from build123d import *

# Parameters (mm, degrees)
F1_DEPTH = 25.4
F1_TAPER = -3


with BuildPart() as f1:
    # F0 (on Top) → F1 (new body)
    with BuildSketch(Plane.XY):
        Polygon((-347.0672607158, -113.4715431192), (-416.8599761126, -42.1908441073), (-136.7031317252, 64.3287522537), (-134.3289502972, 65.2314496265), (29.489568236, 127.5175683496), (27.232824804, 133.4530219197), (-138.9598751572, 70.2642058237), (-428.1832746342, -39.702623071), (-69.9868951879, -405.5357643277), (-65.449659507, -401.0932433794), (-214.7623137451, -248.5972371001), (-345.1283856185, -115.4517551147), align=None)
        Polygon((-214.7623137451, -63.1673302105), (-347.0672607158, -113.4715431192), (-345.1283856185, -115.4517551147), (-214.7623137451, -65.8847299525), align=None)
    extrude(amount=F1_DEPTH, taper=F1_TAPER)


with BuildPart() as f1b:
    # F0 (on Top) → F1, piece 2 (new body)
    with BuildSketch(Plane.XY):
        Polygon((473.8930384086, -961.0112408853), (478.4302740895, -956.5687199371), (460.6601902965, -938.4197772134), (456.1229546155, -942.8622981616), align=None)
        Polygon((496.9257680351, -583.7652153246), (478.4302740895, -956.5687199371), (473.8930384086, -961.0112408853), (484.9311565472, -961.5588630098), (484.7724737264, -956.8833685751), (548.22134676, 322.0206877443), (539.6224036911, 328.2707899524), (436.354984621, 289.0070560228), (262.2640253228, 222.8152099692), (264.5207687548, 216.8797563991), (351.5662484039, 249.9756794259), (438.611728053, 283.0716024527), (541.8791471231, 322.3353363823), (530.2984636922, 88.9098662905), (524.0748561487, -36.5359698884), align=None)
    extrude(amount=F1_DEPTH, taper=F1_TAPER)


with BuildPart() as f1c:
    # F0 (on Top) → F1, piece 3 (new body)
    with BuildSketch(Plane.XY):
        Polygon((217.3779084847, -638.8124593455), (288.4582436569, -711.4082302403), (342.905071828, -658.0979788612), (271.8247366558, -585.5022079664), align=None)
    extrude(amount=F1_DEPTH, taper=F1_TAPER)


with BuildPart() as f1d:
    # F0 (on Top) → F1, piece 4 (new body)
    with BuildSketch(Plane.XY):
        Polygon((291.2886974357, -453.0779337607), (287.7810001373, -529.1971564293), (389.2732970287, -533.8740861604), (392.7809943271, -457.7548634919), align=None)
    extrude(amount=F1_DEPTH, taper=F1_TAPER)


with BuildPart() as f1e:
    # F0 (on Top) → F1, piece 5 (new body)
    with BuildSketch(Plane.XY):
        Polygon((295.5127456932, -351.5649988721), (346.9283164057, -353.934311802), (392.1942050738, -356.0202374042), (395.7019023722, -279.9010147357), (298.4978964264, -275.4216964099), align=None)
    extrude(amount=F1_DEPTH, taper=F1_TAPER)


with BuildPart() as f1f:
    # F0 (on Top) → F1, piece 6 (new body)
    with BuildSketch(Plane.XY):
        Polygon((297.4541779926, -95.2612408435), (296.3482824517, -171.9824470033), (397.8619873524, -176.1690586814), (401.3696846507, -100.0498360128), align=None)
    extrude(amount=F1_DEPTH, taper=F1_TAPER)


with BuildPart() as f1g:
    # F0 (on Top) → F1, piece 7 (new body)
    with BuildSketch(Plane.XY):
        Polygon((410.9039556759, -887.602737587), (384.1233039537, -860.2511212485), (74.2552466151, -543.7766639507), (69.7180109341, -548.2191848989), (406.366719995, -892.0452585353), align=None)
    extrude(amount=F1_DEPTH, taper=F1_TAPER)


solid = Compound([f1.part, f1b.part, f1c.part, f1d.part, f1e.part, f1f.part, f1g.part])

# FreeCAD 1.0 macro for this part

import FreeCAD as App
import Part
import Sketcher

V = App.Vector
Q = App.Units.Quantity


def add_polygon(sketch, points):
    """Adds a closed chain of lines whose ends are joined by coincident constraints."""
    first, n = sketch.GeometryCount, len(points)
    for a, b in zip(points, points[1:] + points[:1]):
        sketch.addGeometry(Part.LineSegment(App.Vector(*a, 0), App.Vector(*b, 0)), False)
    for i in range(n):
        sketch.addConstraint(Sketcher.Constraint("Coincident", first + i, 2, first + (i + 1) % n, 1))

doc = App.newDocument("Part")
body = doc.addObject("PartDesign::Body", "Body")

sketch1 = body.newObject("Sketcher::SketchObject", "Sketch")
sketch1.AttachmentSupport = (doc.getObject("XY_Plane"), [""])
sketch1.MapMode = "FlatFace"
add_polygon(sketch1, [(-347.067261, -113.471543), (-416.859976, -42.190844), (-136.703132, 64.328752), (-134.32895, 65.23145), (29.489568, 127.517568), (27.232825, 133.453022), (-428.183275, -39.702623), (-69.986895, -405.535764), (-65.44966, -401.093243), (-345.128386, -115.451755), (-214.762314, -65.88473), (-214.762314, -63.16733)])
sketch1.addConstraint([
    Sketcher.Constraint("Vertical", 10),
    Sketcher.Constraint("Parallel", 1, 2),
    Sketcher.Constraint("Parallel", 2, 3),
    Sketcher.Constraint("Perpendicular", 3, 4),
    Sketcher.Constraint("Perpendicular", 4, 5),
    Sketcher.Constraint("Parallel", 0, 6),
    Sketcher.Constraint("Perpendicular", 6, 7),
    Sketcher.Constraint("Perpendicular", 7, 8),
    Sketcher.Constraint("Parallel", 5, 9),
    Sketcher.Constraint("Parallel", 9, 11),
    Sketcher.Constraint("Equal", 4, 7),
    Sketcher.Constraint("Distance", 2, Q("0.1 in")),
    Sketcher.Constraint("Distance", 3, Q("6.9 in")),
    Sketcher.Constraint("Distance", 4, Q("0.25 in")),
    Sketcher.Constraint("DistanceY", 10, 1, 10, 2, 2.7174),
    Sketcher.Constraint("DistanceX", 2, 2, 4, 2, Q("6.3606998 in")),
    Sketcher.Constraint("DistanceX", 5, 2, 9, 2, Q("8.4024 in")),
    Sketcher.Constraint("DistanceX", 0, 2, 4, 2, 444.092801),
    Sketcher.Constraint("DistanceX", 5, 2, 0, 2, 11.323299),
    Sketcher.Constraint("DistanceY", 7, 2, 0, 2, 358.902399),
    Sketcher.Constraint("DistanceY", 11, 2, 0, 2, 71.280699),
    Sketcher.Constraint("Distance", 6, 511.994662),
    Sketcher.Constraint("DistanceX", 1, 2, -1, 1, 136.703132),
    Sketcher.Constraint("DistanceY", -1, 1, 2, 2, 65.23145),
])
pad1 = body.newObject("PartDesign::Pad", "Pad")
pad1.Profile = sketch1
pad1.Length = Q("1 in")
pad1.TaperAngle = 3
body2 = doc.addObject("PartDesign::Body", "Body001")

sketch2 = body2.newObject("Sketcher::SketchObject", "Sketch001")
sketch2.AttachmentSupport = (doc.getObject("XY_Plane001"), [""])
sketch2.MapMode = "FlatFace"
add_polygon(sketch2, [(478.430274, -956.56872), (460.66019, -938.419777), (456.122955, -942.862298), (473.893038, -961.011241), (484.931157, -961.558863), (484.772474, -956.883369), (548.221347, 322.020688), (539.622404, 328.27079), (262.264025, 222.81521), (264.520769, 216.879756), (541.879147, 322.335336)])
sketch2.addConstraint([
    Sketcher.Constraint("Perpendicular", 0, 1),
    Sketcher.Constraint("Perpendicular", 1, 2),
    Sketcher.Constraint("Perpendicular", 3, 5),
    Sketcher.Constraint("Perpendicular", 7, 8),
    Sketcher.Constraint("Perpendicular", 8, 9),
    Sketcher.Constraint("Parallel", 5, 10),
    Sketcher.Constraint("Equal", 0, 2),
    Sketcher.Constraint("Equal", 1, 8),
    Sketcher.Constraint("Equal", 7, 9),
    Sketcher.Constraint("Equal", 5, 10),
    Sketcher.Constraint("Distance", 0, Q("1 in")),
    Sketcher.Constraint("Distance", 1, Q("0.25 in")),
    Sketcher.Constraint("Distance", 5, 1280.476999),
    Sketcher.Constraint("DistanceY", 1, 2, -1, 1, 942.862298),
    Sketcher.Constraint("DistanceX", 1, 2, 3, 2, 28.808202),
    Sketcher.Constraint("DistanceX", 9, 2, 5, 2, 6.3422),
    Sketcher.Constraint("Distance", 6, 10.630409),
    Sketcher.Constraint("Distance", 7, 296.729758),
    Sketcher.Constraint("DistanceX", -1, 1, 0, 2, 460.66019),
    Sketcher.Constraint("DistanceX", -1, 1, 2, 2, 473.893038),
    Sketcher.Constraint("DistanceY", 4, 2, -1, 1, 956.883369),
    Sketcher.Constraint("DistanceY", -1, 1, 6, 2, 328.27079),
])
pad2 = body2.newObject("PartDesign::Pad", "Pad001")
pad2.Profile = sketch2
pad2.Length = Q("1 in")
pad2.TaperAngle = 3
body3 = doc.addObject("PartDesign::Body", "Body002")

sketch3 = body3.newObject("Sketcher::SketchObject", "Sketch002")
sketch3.AttachmentSupport = (doc.getObject("XY_Plane002"), [""])
sketch3.MapMode = "FlatFace"
add_polygon(sketch3, [(217.377908, -638.812459), (288.458244, -711.40823), (342.905072, -658.097979), (271.824737, -585.502208)])
sketch3.addConstraint([
    Sketcher.Constraint("Perpendicular", 0, 1),
    Sketcher.Constraint("Perpendicular", 1, 2),
    Sketcher.Constraint("Perpendicular", 2, 3),
    Sketcher.Constraint("Distance", 0, Q("4 in")),
    Sketcher.Constraint("Distance", 1, Q("3 in")),
    Sketcher.Constraint("DistanceY", 0, 2, -1, 1, 711.40823),
    Sketcher.Constraint("DistanceX", -1, 1, 1, 2, 342.905072),
    Sketcher.Constraint("DistanceY", 1, 2, -1, 1, 658.097979),
])
pad3 = body3.newObject("PartDesign::Pad", "Pad002")
pad3.Profile = sketch3
pad3.Length = Q("1 in")
pad3.TaperAngle = 3
body4 = doc.addObject("PartDesign::Body", "Body003")

sketch4 = body4.newObject("Sketcher::SketchObject", "Sketch003")
sketch4.AttachmentSupport = (doc.getObject("XY_Plane003"), [""])
sketch4.MapMode = "FlatFace"
add_polygon(sketch4, [(291.288697, -453.077934), (287.781, -529.197156), (389.273297, -533.874086), (392.780994, -457.754863)])
sketch4.addConstraint([
    Sketcher.Constraint("Perpendicular", 0, 1),
    Sketcher.Constraint("Perpendicular", 1, 2),
    Sketcher.Constraint("Perpendicular", 2, 3),
    Sketcher.Constraint("Distance", 0, Q("3 in")),
    Sketcher.Constraint("Distance", 1, Q("4 in")),
    Sketcher.Constraint("DistanceX", -1, 1, 0, 2, 287.781),
    Sketcher.Constraint("DistanceX", 3, 2, 1, 2, 97.9846),
    Sketcher.Constraint("DistanceY", 0, 2, -1, 1, 529.197156),
])
pad4 = body4.newObject("PartDesign::Pad", "Pad003")
pad4.Profile = sketch4
pad4.Length = Q("1 in")
pad4.TaperAngle = 3
body5 = doc.addObject("PartDesign::Body", "Body004")

sketch5 = body5.newObject("Sketcher::SketchObject", "Sketch004")
sketch5.AttachmentSupport = (doc.getObject("XY_Plane004"), [""])
sketch5.MapMode = "FlatFace"
add_polygon(sketch5, [(295.512746, -351.564999), (346.928316, -353.934312), (392.194205, -356.020237), (395.701902, -279.901015), (298.497896, -275.421696)])
sketch5.addConstraint([
    Sketcher.Constraint("Parallel", 0, 1),
    Sketcher.Constraint("Perpendicular", 1, 2),
    Sketcher.Constraint("Perpendicular", 2, 3),
    Sketcher.Constraint("Distance", 2, Q("3 in")),
    Sketcher.Constraint("DistanceY", 4, 2, -1, 1, 351.564999),
    Sketcher.Constraint("Distance", 3, 97.307158),
    Sketcher.Constraint("DistanceY", 0, 2, -1, 1, 353.934312),
    Sketcher.Constraint("DistanceX", 0, 2, 1, 2, 45.265889),
    Sketcher.Constraint("DistanceX", 3, 2, 0, 2, 48.43042),
    Sketcher.Constraint("DistanceX", -1, 1, 0, 2, 346.928316),
])
pad5 = body5.newObject("PartDesign::Pad", "Pad004")
pad5.Profile = sketch5
pad5.Length = Q("1 in")
pad5.TaperAngle = 3
body6 = doc.addObject("PartDesign::Body", "Body005")

sketch6 = body6.newObject("Sketcher::SketchObject", "Sketch005")
sketch6.AttachmentSupport = (doc.getObject("XY_Plane005"), [""])
sketch6.MapMode = "FlatFace"
add_polygon(sketch6, [(297.454178, -95.261241), (296.348282, -171.982447), (397.861987, -176.169059), (401.369685, -100.049836)])
sketch6.addConstraint([
    Sketcher.Constraint("Perpendicular", 2, 3),
    Sketcher.Constraint("Distance", 1, Q("4 in")),
    Sketcher.Constraint("Distance", 2, Q("3 in")),
    Sketcher.Constraint("Distance", 3, 104.025781),
    Sketcher.Constraint("DistanceY", 1, 2, -1, 1, 176.169059),
    Sketcher.Constraint("DistanceY", 3, 2, -1, 1, 95.261241),
    Sketcher.Constraint("DistanceY", 1, 2, 0, 2, 4.186612),
    Sketcher.Constraint("DistanceX", -1, 1, 0, 2, 296.348282),
])
pad6 = body6.newObject("PartDesign::Pad", "Pad005")
pad6.Profile = sketch6
pad6.Length = Q("1 in")
pad6.TaperAngle = 3
body7 = doc.addObject("PartDesign::Body", "Body006")

sketch7 = body7.newObject("Sketcher::SketchObject", "Sketch006")
sketch7.AttachmentSupport = (doc.getObject("XY_Plane006"), [""])
sketch7.MapMode = "FlatFace"
add_polygon(sketch7, [(410.903956, -887.602738), (384.123304, -860.251121), (74.255247, -543.776664), (69.718011, -548.219185), (406.36672, -892.045259)])
sketch7.addConstraint([
    Sketcher.Constraint("Parallel", 0, 1),
    Sketcher.Constraint("Perpendicular", 1, 2),
    Sketcher.Constraint("Perpendicular", 2, 3),
    Sketcher.Constraint("Perpendicular", 3, 4),
    Sketcher.Constraint("Distance", 2, Q("0.25 in")),
    Sketcher.Constraint("DistanceY", 0, 2, -1, 1, 860.251121),
    Sketcher.Constraint("DistanceX", -1, 1, 2, 2, 69.718011),
    Sketcher.Constraint("DistanceX", -1, 1, 3, 2, 406.36672),
    Sketcher.Constraint("DistanceY", 3, 2, -1, 1, 892.045259),
    Sketcher.Constraint("DistanceY", 2, 2, 1, 2, 4.442521),
])
pad7 = body7.newObject("PartDesign::Pad", "Pad006")
pad7.Profile = sketch7
pad7.Length = Q("1 in")
pad7.TaperAngle = 3

doc.recompute()
